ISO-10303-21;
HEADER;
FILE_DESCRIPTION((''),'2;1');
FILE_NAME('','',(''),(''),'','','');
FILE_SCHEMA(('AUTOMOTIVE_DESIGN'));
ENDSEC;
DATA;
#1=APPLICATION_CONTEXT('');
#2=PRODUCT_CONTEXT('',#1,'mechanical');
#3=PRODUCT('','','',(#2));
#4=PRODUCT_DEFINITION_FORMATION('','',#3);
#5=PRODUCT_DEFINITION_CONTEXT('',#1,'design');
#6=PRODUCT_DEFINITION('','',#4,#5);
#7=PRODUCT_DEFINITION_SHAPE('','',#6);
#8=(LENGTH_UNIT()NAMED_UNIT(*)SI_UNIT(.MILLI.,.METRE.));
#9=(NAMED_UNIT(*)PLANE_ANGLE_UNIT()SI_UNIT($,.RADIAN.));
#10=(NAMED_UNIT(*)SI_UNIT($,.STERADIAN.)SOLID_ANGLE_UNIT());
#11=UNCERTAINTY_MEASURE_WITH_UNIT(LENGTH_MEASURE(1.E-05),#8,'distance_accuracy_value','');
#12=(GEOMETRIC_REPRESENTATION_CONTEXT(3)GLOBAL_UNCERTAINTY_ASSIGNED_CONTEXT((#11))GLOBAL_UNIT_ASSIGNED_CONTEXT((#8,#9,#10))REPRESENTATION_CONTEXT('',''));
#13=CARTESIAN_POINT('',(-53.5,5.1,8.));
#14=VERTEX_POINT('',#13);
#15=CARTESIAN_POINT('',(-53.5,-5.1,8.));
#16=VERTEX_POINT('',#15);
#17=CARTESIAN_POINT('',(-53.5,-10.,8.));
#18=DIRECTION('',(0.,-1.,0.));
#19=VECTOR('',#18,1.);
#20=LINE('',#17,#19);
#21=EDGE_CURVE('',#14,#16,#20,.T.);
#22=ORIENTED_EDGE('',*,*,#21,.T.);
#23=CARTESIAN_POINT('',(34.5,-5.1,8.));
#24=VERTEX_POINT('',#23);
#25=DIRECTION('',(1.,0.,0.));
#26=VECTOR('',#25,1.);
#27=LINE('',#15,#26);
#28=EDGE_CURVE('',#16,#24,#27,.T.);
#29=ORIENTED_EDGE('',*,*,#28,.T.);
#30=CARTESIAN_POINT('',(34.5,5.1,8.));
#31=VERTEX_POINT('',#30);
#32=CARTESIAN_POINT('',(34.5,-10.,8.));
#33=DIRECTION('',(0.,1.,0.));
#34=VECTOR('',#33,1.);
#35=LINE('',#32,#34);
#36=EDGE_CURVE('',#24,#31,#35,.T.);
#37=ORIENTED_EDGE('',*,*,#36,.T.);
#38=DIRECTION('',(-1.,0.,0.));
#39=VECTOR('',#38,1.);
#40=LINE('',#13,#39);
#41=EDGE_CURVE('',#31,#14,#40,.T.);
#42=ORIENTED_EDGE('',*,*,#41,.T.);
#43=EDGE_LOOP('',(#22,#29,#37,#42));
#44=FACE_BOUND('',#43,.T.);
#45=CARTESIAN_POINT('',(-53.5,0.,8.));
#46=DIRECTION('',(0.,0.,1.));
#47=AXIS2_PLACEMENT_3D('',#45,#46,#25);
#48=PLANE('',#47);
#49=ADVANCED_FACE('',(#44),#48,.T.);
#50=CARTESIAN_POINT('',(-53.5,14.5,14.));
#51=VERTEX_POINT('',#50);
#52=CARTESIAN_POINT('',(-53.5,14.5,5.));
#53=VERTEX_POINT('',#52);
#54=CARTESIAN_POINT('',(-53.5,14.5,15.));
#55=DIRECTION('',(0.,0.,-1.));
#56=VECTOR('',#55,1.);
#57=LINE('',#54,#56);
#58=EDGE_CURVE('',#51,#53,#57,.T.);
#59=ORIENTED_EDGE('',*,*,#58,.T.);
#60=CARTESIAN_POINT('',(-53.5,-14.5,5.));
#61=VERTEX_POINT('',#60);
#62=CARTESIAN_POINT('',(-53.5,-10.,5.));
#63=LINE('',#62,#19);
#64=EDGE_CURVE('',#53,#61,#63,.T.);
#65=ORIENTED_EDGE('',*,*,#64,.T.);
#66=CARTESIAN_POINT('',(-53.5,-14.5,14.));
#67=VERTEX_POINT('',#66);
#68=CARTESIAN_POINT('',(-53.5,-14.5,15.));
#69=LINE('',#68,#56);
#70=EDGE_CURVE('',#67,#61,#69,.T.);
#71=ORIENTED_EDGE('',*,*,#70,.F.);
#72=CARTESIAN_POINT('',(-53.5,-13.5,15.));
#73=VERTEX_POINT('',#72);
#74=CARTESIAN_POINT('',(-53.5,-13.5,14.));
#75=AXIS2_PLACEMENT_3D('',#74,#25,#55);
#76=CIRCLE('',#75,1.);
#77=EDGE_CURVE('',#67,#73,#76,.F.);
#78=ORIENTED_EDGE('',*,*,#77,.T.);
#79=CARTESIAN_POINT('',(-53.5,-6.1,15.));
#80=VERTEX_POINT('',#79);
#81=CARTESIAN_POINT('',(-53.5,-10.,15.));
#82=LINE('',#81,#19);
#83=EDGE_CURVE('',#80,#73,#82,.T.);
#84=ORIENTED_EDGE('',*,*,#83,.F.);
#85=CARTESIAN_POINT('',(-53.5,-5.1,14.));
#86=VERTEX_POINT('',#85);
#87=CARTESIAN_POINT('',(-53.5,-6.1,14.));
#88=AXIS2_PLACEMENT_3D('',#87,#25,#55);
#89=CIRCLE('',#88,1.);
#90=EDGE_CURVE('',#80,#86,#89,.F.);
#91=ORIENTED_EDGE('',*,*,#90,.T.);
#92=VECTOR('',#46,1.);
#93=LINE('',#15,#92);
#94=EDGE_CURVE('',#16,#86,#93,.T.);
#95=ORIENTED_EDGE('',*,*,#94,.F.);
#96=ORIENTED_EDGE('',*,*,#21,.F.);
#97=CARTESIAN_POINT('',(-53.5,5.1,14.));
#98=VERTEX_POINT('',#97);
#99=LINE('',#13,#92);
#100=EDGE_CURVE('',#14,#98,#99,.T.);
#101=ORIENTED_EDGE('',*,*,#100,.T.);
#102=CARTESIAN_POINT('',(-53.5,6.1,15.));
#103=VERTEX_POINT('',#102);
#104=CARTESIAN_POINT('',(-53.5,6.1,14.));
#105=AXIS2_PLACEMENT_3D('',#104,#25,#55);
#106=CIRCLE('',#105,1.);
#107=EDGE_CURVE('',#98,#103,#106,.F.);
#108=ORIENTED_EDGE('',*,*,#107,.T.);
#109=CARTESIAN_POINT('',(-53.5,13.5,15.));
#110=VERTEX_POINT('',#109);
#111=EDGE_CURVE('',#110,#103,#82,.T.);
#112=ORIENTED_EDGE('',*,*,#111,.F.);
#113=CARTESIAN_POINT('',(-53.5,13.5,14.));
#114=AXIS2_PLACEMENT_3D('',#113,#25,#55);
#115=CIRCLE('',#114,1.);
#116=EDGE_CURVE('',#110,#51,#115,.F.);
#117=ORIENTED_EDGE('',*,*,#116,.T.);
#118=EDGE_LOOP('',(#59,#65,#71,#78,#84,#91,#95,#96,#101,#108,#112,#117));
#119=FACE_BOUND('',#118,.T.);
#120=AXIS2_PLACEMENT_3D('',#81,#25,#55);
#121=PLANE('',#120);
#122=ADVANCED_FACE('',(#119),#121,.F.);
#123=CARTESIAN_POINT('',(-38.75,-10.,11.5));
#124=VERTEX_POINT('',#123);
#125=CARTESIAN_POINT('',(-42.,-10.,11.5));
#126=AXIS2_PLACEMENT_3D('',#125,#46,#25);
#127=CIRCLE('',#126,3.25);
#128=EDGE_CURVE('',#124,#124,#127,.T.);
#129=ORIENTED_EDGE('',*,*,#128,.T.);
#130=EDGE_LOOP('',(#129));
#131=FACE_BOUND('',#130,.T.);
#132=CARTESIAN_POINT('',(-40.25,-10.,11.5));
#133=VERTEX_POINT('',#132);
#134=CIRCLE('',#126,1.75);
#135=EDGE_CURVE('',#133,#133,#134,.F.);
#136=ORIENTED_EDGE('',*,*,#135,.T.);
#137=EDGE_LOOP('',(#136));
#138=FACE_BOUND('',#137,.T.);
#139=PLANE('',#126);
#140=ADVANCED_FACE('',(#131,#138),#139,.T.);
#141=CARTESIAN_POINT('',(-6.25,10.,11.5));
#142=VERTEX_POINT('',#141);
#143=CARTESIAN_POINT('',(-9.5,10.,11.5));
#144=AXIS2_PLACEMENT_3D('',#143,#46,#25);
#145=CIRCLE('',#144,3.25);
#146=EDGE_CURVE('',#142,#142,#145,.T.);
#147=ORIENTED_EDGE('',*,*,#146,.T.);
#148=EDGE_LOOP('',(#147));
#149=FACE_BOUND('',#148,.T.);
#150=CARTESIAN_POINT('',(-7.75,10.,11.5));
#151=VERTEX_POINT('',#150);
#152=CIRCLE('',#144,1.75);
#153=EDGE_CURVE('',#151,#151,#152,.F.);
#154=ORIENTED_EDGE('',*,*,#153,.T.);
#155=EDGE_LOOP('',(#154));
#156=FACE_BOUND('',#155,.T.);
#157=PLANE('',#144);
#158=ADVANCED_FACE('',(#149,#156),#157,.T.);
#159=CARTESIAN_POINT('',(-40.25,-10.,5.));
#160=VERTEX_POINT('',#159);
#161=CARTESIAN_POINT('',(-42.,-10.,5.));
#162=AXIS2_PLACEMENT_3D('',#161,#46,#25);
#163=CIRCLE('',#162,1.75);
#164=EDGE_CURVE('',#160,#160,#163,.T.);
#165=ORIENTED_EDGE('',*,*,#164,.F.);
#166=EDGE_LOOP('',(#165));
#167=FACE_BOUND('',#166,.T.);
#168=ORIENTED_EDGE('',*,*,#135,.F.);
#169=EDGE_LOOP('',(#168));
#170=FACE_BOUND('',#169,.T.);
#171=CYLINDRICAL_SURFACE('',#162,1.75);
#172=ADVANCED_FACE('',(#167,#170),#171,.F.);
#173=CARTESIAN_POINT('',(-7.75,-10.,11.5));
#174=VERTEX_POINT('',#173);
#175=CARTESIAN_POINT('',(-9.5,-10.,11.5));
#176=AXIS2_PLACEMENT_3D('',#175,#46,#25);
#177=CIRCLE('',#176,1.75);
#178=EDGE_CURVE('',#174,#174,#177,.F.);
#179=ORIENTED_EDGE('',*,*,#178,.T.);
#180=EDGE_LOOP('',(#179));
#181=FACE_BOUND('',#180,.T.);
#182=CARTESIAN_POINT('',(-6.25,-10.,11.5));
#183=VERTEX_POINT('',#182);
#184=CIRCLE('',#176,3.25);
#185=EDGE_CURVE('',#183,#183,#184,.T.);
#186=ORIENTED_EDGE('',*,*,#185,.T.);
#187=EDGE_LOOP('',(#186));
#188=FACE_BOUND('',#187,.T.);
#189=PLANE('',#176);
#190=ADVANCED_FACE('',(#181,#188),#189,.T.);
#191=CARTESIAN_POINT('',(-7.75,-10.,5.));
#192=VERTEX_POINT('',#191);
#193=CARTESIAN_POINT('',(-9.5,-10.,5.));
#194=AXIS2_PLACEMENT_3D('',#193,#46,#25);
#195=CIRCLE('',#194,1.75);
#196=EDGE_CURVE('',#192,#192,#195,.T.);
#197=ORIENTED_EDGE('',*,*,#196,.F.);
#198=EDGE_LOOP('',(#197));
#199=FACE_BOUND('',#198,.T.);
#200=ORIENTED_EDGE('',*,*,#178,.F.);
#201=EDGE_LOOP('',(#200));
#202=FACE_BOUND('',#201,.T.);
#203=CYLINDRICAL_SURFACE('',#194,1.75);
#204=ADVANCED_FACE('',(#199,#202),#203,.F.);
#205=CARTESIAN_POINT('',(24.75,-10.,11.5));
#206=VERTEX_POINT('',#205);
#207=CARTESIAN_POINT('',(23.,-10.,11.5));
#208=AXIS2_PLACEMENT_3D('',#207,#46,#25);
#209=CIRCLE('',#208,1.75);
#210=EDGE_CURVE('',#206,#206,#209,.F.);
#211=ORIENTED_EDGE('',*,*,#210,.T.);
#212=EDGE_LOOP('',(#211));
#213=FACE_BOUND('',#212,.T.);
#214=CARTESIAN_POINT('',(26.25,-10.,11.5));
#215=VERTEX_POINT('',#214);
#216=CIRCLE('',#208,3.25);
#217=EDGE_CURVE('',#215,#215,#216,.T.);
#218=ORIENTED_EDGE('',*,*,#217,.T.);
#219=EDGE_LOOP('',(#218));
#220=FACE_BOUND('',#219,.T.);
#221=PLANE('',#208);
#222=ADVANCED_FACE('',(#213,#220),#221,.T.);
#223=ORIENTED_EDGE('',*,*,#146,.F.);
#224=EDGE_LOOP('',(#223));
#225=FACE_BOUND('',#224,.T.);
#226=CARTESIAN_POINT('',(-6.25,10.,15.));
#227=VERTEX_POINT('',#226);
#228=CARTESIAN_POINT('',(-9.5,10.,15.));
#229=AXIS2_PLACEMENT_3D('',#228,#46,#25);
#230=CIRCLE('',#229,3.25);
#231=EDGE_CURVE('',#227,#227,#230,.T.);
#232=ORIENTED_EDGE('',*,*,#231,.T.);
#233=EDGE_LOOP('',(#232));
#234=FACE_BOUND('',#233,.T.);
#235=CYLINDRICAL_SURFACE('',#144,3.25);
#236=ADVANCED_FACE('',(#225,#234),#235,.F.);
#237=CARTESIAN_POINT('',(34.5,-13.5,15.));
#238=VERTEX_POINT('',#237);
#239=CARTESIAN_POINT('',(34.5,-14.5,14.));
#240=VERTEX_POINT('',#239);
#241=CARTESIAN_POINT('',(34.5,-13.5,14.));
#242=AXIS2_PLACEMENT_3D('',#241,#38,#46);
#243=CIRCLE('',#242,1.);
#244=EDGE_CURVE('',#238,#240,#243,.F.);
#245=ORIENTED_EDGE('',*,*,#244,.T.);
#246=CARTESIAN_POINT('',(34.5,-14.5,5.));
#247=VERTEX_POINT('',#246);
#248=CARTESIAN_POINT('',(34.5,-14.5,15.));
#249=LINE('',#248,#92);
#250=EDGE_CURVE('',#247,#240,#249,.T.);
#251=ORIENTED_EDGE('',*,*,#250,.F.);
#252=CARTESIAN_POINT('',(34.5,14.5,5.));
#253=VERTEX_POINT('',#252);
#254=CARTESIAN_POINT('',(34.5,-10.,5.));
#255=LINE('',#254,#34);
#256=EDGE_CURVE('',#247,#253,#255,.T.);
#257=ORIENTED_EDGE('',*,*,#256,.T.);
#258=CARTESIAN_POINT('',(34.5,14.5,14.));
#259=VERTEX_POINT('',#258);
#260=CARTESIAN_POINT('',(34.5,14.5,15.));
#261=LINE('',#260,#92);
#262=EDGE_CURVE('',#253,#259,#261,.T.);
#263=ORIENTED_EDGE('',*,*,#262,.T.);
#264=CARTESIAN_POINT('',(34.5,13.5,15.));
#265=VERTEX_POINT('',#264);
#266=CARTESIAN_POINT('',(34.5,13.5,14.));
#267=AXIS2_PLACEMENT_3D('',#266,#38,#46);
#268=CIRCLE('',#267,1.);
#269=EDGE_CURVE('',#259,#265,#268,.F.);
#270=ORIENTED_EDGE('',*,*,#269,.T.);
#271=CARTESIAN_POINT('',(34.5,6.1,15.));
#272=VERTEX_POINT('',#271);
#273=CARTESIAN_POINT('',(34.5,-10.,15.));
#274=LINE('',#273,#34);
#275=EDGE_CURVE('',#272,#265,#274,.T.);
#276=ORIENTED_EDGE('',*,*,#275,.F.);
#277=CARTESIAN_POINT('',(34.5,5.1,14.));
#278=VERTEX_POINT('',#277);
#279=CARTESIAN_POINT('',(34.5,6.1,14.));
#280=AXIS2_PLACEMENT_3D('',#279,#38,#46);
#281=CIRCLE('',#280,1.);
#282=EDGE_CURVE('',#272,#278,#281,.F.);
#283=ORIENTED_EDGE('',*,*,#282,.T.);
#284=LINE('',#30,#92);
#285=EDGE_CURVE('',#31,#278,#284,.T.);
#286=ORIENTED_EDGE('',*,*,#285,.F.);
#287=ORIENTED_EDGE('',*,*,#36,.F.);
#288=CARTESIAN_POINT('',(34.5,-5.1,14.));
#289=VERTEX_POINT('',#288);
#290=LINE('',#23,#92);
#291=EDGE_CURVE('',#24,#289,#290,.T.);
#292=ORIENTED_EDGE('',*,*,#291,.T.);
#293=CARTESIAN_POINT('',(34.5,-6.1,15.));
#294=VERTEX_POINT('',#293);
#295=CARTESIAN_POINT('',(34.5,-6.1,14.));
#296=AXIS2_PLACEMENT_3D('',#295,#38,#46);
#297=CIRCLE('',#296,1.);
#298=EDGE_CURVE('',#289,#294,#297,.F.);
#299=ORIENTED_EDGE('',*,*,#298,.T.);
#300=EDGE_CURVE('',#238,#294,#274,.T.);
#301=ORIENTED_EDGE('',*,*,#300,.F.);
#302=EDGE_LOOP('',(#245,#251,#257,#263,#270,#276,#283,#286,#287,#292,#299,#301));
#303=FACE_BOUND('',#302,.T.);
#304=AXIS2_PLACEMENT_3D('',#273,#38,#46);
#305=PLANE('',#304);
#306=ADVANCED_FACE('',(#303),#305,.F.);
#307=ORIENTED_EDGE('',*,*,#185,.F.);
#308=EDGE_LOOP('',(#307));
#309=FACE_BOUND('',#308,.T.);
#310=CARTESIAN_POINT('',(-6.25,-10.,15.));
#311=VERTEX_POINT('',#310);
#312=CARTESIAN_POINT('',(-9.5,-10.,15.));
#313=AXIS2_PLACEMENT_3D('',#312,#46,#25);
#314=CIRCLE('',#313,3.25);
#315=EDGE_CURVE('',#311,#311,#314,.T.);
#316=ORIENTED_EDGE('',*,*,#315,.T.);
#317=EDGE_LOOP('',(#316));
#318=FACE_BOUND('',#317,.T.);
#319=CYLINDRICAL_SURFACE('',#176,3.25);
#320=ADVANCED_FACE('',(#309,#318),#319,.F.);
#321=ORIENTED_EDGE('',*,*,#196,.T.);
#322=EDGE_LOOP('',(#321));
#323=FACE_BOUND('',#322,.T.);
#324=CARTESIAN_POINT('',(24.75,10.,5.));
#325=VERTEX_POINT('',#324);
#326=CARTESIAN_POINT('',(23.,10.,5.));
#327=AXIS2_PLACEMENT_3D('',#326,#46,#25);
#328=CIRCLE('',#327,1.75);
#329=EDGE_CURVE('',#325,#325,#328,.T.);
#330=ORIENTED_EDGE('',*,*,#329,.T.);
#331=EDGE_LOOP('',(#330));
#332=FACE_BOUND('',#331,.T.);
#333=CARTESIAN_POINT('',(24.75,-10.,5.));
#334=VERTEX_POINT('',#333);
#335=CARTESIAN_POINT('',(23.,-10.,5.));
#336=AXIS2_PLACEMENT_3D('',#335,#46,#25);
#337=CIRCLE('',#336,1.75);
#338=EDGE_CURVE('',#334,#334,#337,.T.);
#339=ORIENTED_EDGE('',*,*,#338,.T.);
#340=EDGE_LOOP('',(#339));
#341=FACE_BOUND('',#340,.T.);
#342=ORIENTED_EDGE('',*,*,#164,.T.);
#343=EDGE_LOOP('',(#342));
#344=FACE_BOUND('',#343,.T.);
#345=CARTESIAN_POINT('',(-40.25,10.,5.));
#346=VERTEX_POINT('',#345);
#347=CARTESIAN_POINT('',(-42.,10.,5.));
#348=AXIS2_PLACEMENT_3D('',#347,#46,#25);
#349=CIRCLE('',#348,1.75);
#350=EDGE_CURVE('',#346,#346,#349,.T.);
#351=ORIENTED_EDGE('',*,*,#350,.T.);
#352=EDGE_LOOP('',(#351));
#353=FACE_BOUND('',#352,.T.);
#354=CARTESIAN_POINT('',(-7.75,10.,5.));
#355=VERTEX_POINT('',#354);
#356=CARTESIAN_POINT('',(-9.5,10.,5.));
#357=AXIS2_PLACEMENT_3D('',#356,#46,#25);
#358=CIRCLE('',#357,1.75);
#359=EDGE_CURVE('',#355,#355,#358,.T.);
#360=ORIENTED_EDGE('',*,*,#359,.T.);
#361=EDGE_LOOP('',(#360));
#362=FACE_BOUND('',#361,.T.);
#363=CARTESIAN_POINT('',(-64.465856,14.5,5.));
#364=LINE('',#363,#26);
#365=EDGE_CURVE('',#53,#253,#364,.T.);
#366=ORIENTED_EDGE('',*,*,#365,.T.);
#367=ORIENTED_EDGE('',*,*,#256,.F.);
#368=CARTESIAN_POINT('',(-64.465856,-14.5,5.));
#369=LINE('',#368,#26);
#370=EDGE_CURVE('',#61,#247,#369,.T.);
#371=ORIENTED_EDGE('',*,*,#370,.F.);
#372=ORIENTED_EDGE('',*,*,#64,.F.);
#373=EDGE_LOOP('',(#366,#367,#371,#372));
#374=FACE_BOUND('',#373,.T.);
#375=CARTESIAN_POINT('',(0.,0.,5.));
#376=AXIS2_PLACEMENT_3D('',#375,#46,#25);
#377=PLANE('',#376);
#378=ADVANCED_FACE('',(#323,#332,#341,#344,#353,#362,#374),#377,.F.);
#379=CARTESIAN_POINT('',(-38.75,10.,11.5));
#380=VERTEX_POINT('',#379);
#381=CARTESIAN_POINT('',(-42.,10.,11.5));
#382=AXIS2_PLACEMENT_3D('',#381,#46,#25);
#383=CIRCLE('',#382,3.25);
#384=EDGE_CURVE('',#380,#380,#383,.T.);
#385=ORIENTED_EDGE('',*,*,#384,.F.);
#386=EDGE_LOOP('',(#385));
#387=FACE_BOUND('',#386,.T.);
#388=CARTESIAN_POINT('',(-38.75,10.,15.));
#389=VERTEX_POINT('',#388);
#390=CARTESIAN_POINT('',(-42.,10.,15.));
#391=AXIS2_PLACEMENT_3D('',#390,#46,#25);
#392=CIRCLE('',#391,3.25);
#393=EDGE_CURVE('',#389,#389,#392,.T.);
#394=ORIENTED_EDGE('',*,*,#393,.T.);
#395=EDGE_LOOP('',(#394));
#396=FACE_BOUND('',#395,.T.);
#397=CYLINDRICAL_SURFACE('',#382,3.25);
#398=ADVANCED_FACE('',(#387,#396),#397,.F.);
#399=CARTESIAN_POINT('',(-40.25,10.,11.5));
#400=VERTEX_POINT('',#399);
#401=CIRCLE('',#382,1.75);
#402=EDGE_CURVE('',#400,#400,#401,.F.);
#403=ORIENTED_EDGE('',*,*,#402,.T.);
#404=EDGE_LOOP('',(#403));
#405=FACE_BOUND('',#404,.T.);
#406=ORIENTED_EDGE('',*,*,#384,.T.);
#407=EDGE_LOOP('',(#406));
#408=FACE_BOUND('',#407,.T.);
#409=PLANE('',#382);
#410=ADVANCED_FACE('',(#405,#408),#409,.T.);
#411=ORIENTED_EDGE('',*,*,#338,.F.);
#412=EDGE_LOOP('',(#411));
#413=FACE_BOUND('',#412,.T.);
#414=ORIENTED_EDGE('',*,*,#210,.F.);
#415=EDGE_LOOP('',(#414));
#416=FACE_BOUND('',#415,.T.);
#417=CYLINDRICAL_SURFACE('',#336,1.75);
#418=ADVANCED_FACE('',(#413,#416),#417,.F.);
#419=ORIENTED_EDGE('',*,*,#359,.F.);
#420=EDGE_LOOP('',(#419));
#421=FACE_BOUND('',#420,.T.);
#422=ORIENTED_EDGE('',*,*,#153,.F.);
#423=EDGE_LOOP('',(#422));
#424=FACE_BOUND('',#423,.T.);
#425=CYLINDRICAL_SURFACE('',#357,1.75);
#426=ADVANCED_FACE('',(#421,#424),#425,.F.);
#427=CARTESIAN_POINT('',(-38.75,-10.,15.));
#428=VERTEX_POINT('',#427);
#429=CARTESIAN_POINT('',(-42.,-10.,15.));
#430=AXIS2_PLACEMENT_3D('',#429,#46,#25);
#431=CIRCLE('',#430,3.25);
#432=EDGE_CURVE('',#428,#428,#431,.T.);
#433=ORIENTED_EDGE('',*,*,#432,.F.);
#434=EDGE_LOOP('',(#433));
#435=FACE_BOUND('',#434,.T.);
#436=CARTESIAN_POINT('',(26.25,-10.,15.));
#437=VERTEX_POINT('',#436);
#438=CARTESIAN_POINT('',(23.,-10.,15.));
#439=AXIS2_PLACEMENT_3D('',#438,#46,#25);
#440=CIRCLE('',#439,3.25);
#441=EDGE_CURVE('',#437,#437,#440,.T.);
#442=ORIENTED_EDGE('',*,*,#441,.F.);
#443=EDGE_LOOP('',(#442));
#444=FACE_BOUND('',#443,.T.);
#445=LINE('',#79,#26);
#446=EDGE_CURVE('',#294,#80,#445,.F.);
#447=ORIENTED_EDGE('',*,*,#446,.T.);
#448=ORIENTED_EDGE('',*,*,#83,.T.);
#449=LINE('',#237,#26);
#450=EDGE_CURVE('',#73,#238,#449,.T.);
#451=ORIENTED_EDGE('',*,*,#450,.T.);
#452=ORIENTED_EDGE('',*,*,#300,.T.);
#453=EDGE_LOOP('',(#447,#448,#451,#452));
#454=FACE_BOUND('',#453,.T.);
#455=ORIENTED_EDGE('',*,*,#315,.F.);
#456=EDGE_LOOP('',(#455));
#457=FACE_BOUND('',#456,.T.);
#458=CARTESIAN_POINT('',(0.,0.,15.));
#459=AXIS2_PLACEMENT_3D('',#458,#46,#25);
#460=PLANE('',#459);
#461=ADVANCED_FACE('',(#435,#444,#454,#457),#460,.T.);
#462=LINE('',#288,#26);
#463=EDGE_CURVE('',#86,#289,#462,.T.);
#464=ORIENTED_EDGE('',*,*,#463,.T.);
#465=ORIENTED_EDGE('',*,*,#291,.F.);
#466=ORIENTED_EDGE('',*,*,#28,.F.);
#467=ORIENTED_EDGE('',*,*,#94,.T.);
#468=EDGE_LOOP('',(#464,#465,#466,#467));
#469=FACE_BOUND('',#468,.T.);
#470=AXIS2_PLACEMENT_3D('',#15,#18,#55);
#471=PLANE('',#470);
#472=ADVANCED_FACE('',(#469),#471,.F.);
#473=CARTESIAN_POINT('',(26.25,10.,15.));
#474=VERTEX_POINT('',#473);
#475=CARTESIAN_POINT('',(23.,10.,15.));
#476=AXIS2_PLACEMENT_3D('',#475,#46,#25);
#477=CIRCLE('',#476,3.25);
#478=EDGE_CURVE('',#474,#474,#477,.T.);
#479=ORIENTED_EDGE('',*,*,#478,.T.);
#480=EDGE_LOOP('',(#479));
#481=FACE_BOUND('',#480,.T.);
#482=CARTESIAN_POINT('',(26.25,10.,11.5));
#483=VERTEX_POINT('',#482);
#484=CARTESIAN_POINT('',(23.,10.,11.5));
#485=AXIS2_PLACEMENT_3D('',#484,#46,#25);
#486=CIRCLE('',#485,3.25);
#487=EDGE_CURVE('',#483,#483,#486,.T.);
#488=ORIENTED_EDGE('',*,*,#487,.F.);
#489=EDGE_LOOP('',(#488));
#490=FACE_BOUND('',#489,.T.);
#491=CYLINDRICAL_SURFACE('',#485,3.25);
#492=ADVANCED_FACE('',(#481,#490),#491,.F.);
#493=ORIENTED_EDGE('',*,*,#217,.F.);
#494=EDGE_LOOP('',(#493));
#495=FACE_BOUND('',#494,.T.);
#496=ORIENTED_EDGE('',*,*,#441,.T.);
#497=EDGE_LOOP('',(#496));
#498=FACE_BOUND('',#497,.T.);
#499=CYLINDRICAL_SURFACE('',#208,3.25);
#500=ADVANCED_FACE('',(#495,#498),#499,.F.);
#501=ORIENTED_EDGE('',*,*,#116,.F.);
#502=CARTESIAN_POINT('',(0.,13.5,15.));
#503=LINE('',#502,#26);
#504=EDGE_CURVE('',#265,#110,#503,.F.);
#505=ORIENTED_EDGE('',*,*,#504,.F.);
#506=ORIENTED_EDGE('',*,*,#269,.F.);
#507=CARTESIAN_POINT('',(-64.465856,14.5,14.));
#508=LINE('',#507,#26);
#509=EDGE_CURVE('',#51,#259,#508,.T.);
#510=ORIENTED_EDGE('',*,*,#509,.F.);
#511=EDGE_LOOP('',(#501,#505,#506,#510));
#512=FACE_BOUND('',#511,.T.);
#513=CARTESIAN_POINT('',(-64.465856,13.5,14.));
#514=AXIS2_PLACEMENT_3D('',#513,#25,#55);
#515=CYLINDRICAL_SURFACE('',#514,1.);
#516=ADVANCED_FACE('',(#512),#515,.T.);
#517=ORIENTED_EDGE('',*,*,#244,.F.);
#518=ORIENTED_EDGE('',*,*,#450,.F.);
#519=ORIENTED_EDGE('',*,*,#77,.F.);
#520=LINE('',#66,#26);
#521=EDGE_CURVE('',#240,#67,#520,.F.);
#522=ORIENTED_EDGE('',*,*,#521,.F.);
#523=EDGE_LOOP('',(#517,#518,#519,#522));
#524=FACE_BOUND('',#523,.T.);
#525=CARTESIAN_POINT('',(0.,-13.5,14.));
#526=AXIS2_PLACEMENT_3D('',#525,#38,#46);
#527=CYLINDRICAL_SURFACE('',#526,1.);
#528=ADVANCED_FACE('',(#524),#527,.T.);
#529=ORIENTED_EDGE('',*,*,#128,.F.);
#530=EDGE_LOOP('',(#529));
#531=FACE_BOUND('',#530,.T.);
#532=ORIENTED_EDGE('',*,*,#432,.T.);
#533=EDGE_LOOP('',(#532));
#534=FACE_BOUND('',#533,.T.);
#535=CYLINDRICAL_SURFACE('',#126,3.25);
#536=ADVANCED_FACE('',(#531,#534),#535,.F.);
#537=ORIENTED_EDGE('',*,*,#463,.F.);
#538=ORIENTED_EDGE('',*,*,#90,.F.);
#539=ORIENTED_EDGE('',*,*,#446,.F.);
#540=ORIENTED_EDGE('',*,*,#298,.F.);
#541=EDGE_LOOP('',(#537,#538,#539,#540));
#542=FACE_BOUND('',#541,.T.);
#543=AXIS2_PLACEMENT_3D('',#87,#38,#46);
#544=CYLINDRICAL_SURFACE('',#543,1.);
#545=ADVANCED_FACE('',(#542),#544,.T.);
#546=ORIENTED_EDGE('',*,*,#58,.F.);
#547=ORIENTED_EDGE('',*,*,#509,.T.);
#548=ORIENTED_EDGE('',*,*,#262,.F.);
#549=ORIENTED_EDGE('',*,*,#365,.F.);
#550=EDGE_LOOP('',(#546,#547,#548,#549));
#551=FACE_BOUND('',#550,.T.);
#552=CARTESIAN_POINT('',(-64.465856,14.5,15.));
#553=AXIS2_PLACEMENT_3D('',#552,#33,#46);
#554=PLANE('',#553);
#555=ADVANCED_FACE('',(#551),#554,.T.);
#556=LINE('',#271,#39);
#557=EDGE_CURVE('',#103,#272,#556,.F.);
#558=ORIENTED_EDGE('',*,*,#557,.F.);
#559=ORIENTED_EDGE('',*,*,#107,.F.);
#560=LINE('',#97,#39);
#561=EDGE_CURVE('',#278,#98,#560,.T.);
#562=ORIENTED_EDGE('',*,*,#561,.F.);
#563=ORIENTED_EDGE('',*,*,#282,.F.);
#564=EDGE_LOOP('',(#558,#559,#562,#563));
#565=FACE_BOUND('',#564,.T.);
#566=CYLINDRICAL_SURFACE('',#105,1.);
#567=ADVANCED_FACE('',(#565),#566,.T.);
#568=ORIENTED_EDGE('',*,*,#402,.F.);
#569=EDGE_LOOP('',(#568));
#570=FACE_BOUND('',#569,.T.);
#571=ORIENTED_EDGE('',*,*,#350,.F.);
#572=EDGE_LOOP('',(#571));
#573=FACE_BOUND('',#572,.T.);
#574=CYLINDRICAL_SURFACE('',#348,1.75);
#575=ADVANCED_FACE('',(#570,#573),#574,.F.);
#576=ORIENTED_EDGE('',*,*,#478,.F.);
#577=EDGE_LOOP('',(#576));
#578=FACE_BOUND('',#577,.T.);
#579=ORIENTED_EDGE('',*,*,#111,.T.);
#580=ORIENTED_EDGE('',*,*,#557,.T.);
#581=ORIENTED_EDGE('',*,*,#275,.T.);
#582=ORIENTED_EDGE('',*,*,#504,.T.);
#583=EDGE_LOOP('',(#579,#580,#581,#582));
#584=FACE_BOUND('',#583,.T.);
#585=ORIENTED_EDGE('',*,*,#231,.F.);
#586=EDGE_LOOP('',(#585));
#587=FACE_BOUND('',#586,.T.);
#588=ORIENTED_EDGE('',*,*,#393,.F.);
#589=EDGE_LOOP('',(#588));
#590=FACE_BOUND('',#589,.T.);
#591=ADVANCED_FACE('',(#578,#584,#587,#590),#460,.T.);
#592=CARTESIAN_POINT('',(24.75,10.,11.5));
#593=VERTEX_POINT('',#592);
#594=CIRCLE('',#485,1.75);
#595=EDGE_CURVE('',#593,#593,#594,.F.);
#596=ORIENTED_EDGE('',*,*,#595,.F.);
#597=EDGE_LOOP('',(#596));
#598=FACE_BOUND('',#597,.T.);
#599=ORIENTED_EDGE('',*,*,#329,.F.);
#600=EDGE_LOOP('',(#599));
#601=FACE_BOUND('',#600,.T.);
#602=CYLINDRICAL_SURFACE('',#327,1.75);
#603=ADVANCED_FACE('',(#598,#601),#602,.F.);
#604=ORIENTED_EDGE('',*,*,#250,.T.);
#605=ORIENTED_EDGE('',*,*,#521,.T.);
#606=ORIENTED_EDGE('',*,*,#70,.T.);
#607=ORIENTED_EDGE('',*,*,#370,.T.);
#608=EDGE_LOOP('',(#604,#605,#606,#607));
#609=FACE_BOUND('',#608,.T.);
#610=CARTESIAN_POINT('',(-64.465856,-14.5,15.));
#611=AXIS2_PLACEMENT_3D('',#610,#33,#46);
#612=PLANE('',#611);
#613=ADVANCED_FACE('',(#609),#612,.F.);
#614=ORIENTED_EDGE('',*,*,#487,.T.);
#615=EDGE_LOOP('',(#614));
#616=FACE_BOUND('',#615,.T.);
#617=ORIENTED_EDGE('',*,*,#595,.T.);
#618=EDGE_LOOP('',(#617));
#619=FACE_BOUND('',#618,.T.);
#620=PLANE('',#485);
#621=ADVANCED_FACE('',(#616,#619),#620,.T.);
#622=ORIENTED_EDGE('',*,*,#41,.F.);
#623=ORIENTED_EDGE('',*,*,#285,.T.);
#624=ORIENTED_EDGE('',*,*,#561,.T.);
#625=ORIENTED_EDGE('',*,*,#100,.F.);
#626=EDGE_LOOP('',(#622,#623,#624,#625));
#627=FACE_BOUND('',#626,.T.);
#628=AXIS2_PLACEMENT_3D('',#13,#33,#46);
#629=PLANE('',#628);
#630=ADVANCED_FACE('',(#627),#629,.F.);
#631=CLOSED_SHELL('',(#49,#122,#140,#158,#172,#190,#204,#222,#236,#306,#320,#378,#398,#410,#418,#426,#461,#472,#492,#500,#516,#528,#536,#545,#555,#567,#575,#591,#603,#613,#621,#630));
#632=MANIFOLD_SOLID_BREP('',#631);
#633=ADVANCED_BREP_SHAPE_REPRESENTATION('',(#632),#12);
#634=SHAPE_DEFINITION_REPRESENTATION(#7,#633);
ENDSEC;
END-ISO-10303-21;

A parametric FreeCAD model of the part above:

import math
import FreeCAD as App
import Part
import Sketcher
from FreeCAD import Vector


def edges_at(feature, points):
    """Names of the edges that pass closest to the given points."""
    edges = feature.Shape.Edges
    near = lambda p: min(range(len(edges)), key=lambda i: edges[i].distToShape(Part.Vertex(*p))[0])
    return sorted({f"Edge{near(p) + 1}" for p in points})


def add_polygon(sketch, points):
    """Adds a closed chain of lines whose ends are joined by coincident constraints."""
    first, n = sketch.GeometryCount, len(points)
    for a, b in zip(points, points[1:] + points[:1]):
        sketch.addGeometry(Part.LineSegment(App.Vector(*a, 0), App.Vector(*b, 0)), False)
    for i in range(n):
        sketch.addConstraint(Sketcher.Constraint("Coincident", first + i, 2, first + (i + 1) % n, 1))

doc = App.newDocument("Part")
body = doc.addObject("PartDesign::Body", "Body")
body.AllowCompound = True

sketch1 = body.newObject("Sketcher::SketchObject", "Sketch")
sketch1.AttachmentSupport = (doc.getObject("XY_Plane"), [""])
sketch1.MapMode = "FlatFace"
add_polygon(sketch1, [(-128, 40), (-128, -40), (128, -40), (128, 40)])
sketch1.addConstraint(Sketcher.Constraint("Vertical", 0))
sketch1.addConstraint(Sketcher.Constraint("Horizontal", 1))
sketch1.addConstraint(Sketcher.Constraint("Vertical", 2))
sketch1.addConstraint(Sketcher.Constraint("Horizontal", 3))
sketch1.addConstraint(Sketcher.Constraint("Symmetric", 0, 2, 2, 2, -1, 1))
sketch1.addConstraint(Sketcher.Constraint("DistanceX", 1, 1, 1, 2, 255.0))
sketch1.addConstraint(Sketcher.Constraint("DistanceY", 0, 2, 0, 1, 80.0))
pad1 = body.newObject("PartDesign::Pad", "Pad")
pad1.Profile = sketch1
pad1.Length = 5

sketch2 = body.newObject("Sketcher::SketchObject", "Sketch001")
sketch2.AttachmentSupport = (doc.getObject("XY_Plane"), [""])
sketch2.MapMode = "FlatFace"
sketch2.AttachmentOffset = App.Placement(Vector(0, 0, 5), App.Rotation())
sketch2.addGeometry(Part.Circle(Vector(-108, 0, 0), Vector(0, 0, 1), 5), False)
sketch2.addConstraint(Sketcher.Constraint("PointOnObject", 0, 3, -1))
sketch2.addConstraint(Sketcher.Constraint("Diameter", 0, 10.0))
sketch2.addConstraint(Sketcher.Constraint("DistanceX", 0, 3, -1, 1, 107.5))
pocket1 = body.newObject("PartDesign::Pocket", "Pocket")
pocket1.Profile = sketch2
pocket1.Length = 5

sketch3 = body.newObject("Sketcher::SketchObject", "Sketch002")
sketch3.AttachmentSupport = (doc.getObject("XY_Plane"), [""])
sketch3.MapMode = "FlatFace"
sketch3.AttachmentOffset = App.Placement(Vector(0, 0, 5), App.Rotation())
sketch3.addGeometry(Part.Circle(Vector(-45, 0, 0), Vector(0, 0, 1), 4), False)
sketch3.addConstraint(Sketcher.Constraint("PointOnObject", 0, 3, -1))
sketch3.addConstraint(Sketcher.Constraint("Diameter", 0, 8.0))
sketch3.addConstraint(Sketcher.Constraint("DistanceX", 0, 3, -1, 1, 45.0))
pocket2 = body.newObject("PartDesign::Pocket", "Pocket001")
pocket2.Profile = sketch3
pocket2.Length = 10

sketch4 = body.newObject("Sketcher::SketchObject", "Sketch003")
sketch4.AttachmentSupport = (doc.getObject("XY_Plane"), [""])
sketch4.MapMode = "FlatFace"
sketch4.AttachmentOffset = App.Placement(Vector(0, 0, 5), App.Rotation())
add_polygon(sketch4, [(-54, 10), (-54, -10), (34, -10), (34, 10)])
sketch4.addConstraint(Sketcher.Constraint("Vertical", 0))
sketch4.addConstraint(Sketcher.Constraint("Horizontal", 1))
sketch4.addConstraint(Sketcher.Constraint("Vertical", 2))
sketch4.addConstraint(Sketcher.Constraint("Horizontal", 3))
sketch4.addConstraint(Sketcher.Constraint("DistanceX", 1, 1, 1, 2, 88.0))
sketch4.addConstraint(Sketcher.Constraint("DistanceY", 0, 2, 0, 1, 20.0))
sketch4.addConstraint(Sketcher.Constraint("DistanceY", 0, 2, -1, 1, 10.0))
sketch4.addConstraint(Sketcher.Constraint("DistanceX", 0, 2, -1, 1, 53.5))
pad2 = body.newObject("PartDesign::Pad", "Pad001")
pad2.Profile = sketch4
pad2.Length = 10

sketch5 = body.newObject("Sketcher::SketchObject", "Sketch004")
sketch5.AttachmentSupport = (doc.getObject("XY_Plane"), [""])
sketch5.MapMode = "FlatFace"
sketch5.AttachmentOffset = App.Placement(Vector(0, 0, 5), App.Rotation())
sketch5.addGeometry(Part.Circle(Vector(70, 0, 0), Vector(0, 0, 1), 15), False)
sketch5.addConstraint(Sketcher.Constraint("PointOnObject", 0, 3, -1))
sketch5.addConstraint(Sketcher.Constraint("Diameter", 0, 30.0))
sketch5.addConstraint(Sketcher.Constraint("DistanceX", -1, 1, 0, 3, 70.0))
pocket3 = body.newObject("PartDesign::Pocket", "Pocket002")
pocket3.Profile = sketch5
pocket3.Length = 10

sketch6 = body.newObject("Sketcher::SketchObject", "Sketch005")
sketch6.AttachmentSupport = (doc.getObject("XY_Plane"), [""])
sketch6.MapMode = "FlatFace"
sketch6.addGeometry(Part.Circle(Vector(-108, 0, 0), Vector(0, 0, 1), 7), False)
sketch6.addConstraint(Sketcher.Constraint("PointOnObject", 0, 3, -1))
sketch6.addConstraint(Sketcher.Constraint("Diameter", 0, 14.0))
sketch6.addConstraint(Sketcher.Constraint("DistanceX", 0, 3, -1, 1, 107.5))
pad3 = body.newObject("PartDesign::Pad", "Pad002")
pad3.Profile = sketch6
pad3.Length = 15

sketch7 = body.newObject("Sketcher::SketchObject", "Sketch006")
sketch7.AttachmentSupport = (doc.getObject("XY_Plane"), [""])
sketch7.MapMode = "FlatFace"
sketch7.AttachmentOffset = App.Placement(Vector(0, 0, 15), App.Rotation())
sketch7.addGeometry(Part.Circle(Vector(-107.5, 0, 0), Vector(0, 0, 1), 2.5), False)
sketch7.addConstraint(Sketcher.Constraint("PointOnObject", 0, 3, -1))
sketch7.addConstraint(Sketcher.Constraint("Diameter", 0, 5.0))
sketch7.addConstraint(Sketcher.Constraint("DistanceX", 0, 3, -1, 1, 107.5))
doc.recompute()
hole = body.newObject("PartDesign::Hole", "Hole")
hole.Profile = sketch7
hole.ThreadType = "None"
hole.Diameter = 5
hole.DepthType = "ThroughAll"

sketch8 = body.newObject("Sketcher::SketchObject", "Sketch007")
sketch8.AttachmentSupport = (doc.getObject("XY_Plane"), [""])
sketch8.MapMode = "FlatFace"
sketch8.AttachmentOffset = App.Placement(Vector(0, 0, 15), App.Rotation())
sketch8.addGeometry(Part.LineSegment(Vector(34, 5, 0), Vector(-54, 5, 0)), False)
sketch8.addGeometry(Part.ArcOfCircle(Part.Circle(Vector(-54, 0, 0), Vector(0, 0, 1), 5), math.radians(90), math.radians(270)), False)
sketch8.addGeometry(Part.LineSegment(Vector(-54, -5, 0), Vector(34, -5, 0)), False)
sketch8.addGeometry(Part.ArcOfCircle(Part.Circle(Vector(34, 0, 0), Vector(0, 0, 1), 5), math.radians(-90), math.radians(90)), False)
sketch8.addConstraint(Sketcher.Constraint("Tangent", 0, 2, 1, 1))
sketch8.addConstraint(Sketcher.Constraint("Tangent", 1, 2, 2, 1))
sketch8.addConstraint(Sketcher.Constraint("Tangent", 2, 2, 3, 1))
sketch8.addConstraint(Sketcher.Constraint("Tangent", 3, 2, 0, 1))
sketch8.addConstraint(Sketcher.Constraint("Horizontal", 0))
sketch8.addConstraint(Sketcher.Constraint("Horizontal", 2))
sketch8.addConstraint(Sketcher.Constraint("PointOnObject", 1, 3, -1))
sketch8.addConstraint(Sketcher.Constraint("Radius", 1, 5.1))
sketch8.addConstraint(Sketcher.Constraint("DistanceX", 0, 2, 0, 1, 88.0))
sketch8.addConstraint(Sketcher.Constraint("DistanceX", 1, 3, -1, 1, 53.5))
pocket4 = body.newObject("PartDesign::Pocket", "Pocket003")
pocket4.Profile = sketch8
pocket4.Length = 7

sketch9 = body.newObject("Sketcher::SketchObject", "Sketch008")
sketch9.AttachmentSupport = (doc.getObject("XY_Plane"), [""])
sketch9.MapMode = "FlatFace"
sketch9.addGeometry(Part.Circle(Vector(39.8, -26.5, 0), Vector(0, 0, 1), 1.6), False)
sketch9.addGeometry(Part.Circle(Vector(39.8, -1.5, 0), Vector(0, 0, 1), 1.6), False)
sketch9.addGeometry(Part.Circle(Vector(109.9, -26.5, 0), Vector(0, 0, 1), 1.6), False)
sketch9.addGeometry(Part.Circle(Vector(100.2, -1.5, 0), Vector(0, 0, 1), 1.6), False)
sketch9.addConstraint(Sketcher.Constraint("Equal", 0, 1))
sketch9.addConstraint(Sketcher.Constraint("Equal", 1, 2))
sketch9.addConstraint(Sketcher.Constraint("Equal", 2, 3))
sketch9.addConstraint(Sketcher.Constraint("Horizontal", 0, 3, 2, 3))
sketch9.addConstraint(Sketcher.Constraint("Horizontal", 1, 3, 3, 3))
sketch9.addConstraint(Sketcher.Constraint("Vertical", 0, 3, 1, 3))
sketch9.addConstraint(Sketcher.Constraint("Diameter", 0, 3.3))
sketch9.addConstraint(Sketcher.Constraint("DistanceY", 0, 3, 1, 3, 25.0))
sketch9.addConstraint(Sketcher.Constraint("DistanceY", 0, 3, -1, 1, 26.5))
sketch9.addConstraint(Sketcher.Constraint("DistanceX", 1, 3, 3, 3, 60.5))
sketch9.addConstraint(Sketcher.Constraint("DistanceX", -1, 1, 0, 3, 39.75))
sketch9.addConstraint(Sketcher.Constraint("DistanceX", -1, 1, 2, 3, 109.940074))
doc.recompute()
hole2 = body.newObject("PartDesign::Hole", "Hole001")
hole2.Profile = sketch9
hole2.ThreadType = "None"
hole2.Diameter = 3.3
hole2.DepthType = "ThroughAll"
hole2.Reversed = True
doc.recompute()

fillet = body.newObject("PartDesign::Fillet", "Fillet")
fillet.Base = (hole2, edges_at(hole2, [(-127.5, 40, 2.5), (-127.5, -40, 2.5)]))
fillet.Radius = 10

sketch10 = body.newObject("Sketcher::SketchObject", "Sketch009")
sketch10.AttachmentSupport = (doc.getObject("XY_Plane"), [""])
sketch10.MapMode = "FlatFace"
sketch10.AttachmentOffset = App.Placement(Vector(0, 0, 5), App.Rotation())
sketch10.addGeometry(Part.Circle(Vector(-45, 0, 0), Vector(0, 0, 1), 7), False)
sketch10.addConstraint(Sketcher.Constraint("PointOnObject", 0, 3, -1))
sketch10.addConstraint(Sketcher.Constraint("DistanceX", 0, 3, -1, 1, 45.0))
sketch10.addConstraint(Sketcher.Constraint("Diameter", 0, 13.93877))
pad4 = body.newObject("PartDesign::Pad", "Pad003")
pad4.Profile = sketch10
pad4.Length = 5
pad4.Reversed = True

sketch11 = body.newObject("Sketcher::SketchObject", "Sketch010")
sketch11.AttachmentSupport = (doc.getObject("XZ_Plane"), [""])
sketch11.MapMode = "FlatFace"
sketch11.AttachmentOffset = App.Placement(Vector(0, 0, 40), App.Rotation())
add_polygon(sketch11, [(122, 0), (122, -75), (128, -75), (128, 0)])
sketch11.addConstraint(Sketcher.Constraint("Vertical", 0))
sketch11.addConstraint(Sketcher.Constraint("Horizontal", 1))
sketch11.addConstraint(Sketcher.Constraint("Vertical", 2))
sketch11.addConstraint(Sketcher.Constraint("Horizontal", 3))
sketch11.addConstraint(Sketcher.Constraint("PointOnObject", 2, 2, -1))
sketch11.addConstraint(Sketcher.Constraint("DistanceX", 1, 1, 1, 2, 5.0))
sketch11.addConstraint(Sketcher.Constraint("DistanceY", 0, 2, 0, 1, 75.0))
sketch11.addConstraint(Sketcher.Constraint("DistanceX", -1, 1, 0, 2, 122.5))
pad5 = body.newObject("PartDesign::Pad", "Pad004")
pad5.Profile = sketch11
pad5.Length = 80
pad5.Reversed = True

sketch12 = body.newObject("Sketcher::SketchObject", "Sketch011")
sketch12.AttachmentSupport = (doc.getObject("XZ_Plane"), [""])
sketch12.MapMode = "FlatFace"
sketch12.AttachmentOffset = App.Placement(Vector(0, 0, 40), App.Rotation())
add_polygon(sketch12, [(102, -70), (102, -75), (122, -75), (122, -70)])
sketch12.addConstraint(Sketcher.Constraint("Vertical", 0))
sketch12.addConstraint(Sketcher.Constraint("Horizontal", 1))
sketch12.addConstraint(Sketcher.Constraint("Vertical", 2))
sketch12.addConstraint(Sketcher.Constraint("Horizontal", 3))
sketch12.addConstraint(Sketcher.Constraint("DistanceX", 1, 1, 1, 2, 20.0))
sketch12.addConstraint(Sketcher.Constraint("DistanceY", 0, 2, 0, 1, 5.0))
sketch12.addConstraint(Sketcher.Constraint("DistanceY", 0, 2, -1, 1, 75.0))
sketch12.addConstraint(Sketcher.Constraint("DistanceX", -1, 1, 0, 2, 102.5))
pad6 = body.newObject("PartDesign::Pad", "Pad005")
pad6.Profile = sketch12
pad6.Length = 80
pad6.Reversed = True

sketch13 = body.newObject("Sketcher::SketchObject", "Sketch012")
sketch13.AttachmentSupport = (doc.getObject("XZ_Plane"), [""])
sketch13.MapMode = "FlatFace"
sketch13.AttachmentOffset = App.Placement(Vector(0, 0, 40), App.Rotation())
add_polygon(sketch13, [(-32, 5), (-32, 0), (102, -75), (128, -75), (128, 5)])
sketch13.addConstraint(Sketcher.Constraint("Vertical", 0))
sketch13.addConstraint(Sketcher.Constraint("Horizontal", 2))
sketch13.addConstraint(Sketcher.Constraint("Vertical", 3))
sketch13.addConstraint(Sketcher.Constraint("Horizontal", 4))
sketch13.addConstraint(Sketcher.Constraint("PointOnObject", 0, 2, -1))
sketch13.addConstraint(Sketcher.Constraint("DistanceX", 2, 1, 2, 2, 25.0))
sketch13.addConstraint(Sketcher.Constraint("DistanceX", 4, 2, 4, 1, 160.0))
sketch13.addConstraint(Sketcher.Constraint("DistanceY", 0, 2, 0, 1, 5.0))
sketch13.addConstraint(Sketcher.Constraint("DistanceY", 3, 1, 3, 2, 80.0))
sketch13.addConstraint(Sketcher.Constraint("DistanceX", 0, 2, -1, 1, 32.5))
pad7 = body.newObject("PartDesign::Pad", "Pad006")
pad7.Profile = sketch13
pad7.Length = 5
pad7.Reversed = True
doc.recompute()

mirrored = body.newObject("PartDesign::Mirrored", "Mirrored")
mirrored.Originals = [pad7]
mirrored.MirrorPlane = (doc.getObject("XZ_Plane"), [""])
body.Tip = mirrored

sketch14 = body.newObject("Sketcher::SketchObject", "Sketch013")
sketch14.AttachmentSupport = (doc.getObject("XY_Plane"), [""])
sketch14.MapMode = "FlatFace"
sketch14.AttachmentOffset = App.Placement(Vector(0, 0, -75), App.Rotation())
sketch14.addGeometry(Part.Circle(Vector(114.5, -15, 0), Vector(0, 0, 1), 3), False)
sketch14.addGeometry(Part.Circle(Vector(114.5, 15, 0), Vector(0, 0, 1), 3), False)
sketch14.addConstraint(Sketcher.Constraint("Equal", 0, 1))
sketch14.addConstraint(Sketcher.Constraint("Symmetric", 0, 3, 1, 3, -1))
sketch14.addConstraint(Sketcher.Constraint("Diameter", 0, 6.0))
sketch14.addConstraint(Sketcher.Constraint("DistanceY", 0, 3, -1, 1, 15.0))
sketch14.addConstraint(Sketcher.Constraint("DistanceX", -1, 1, 0, 3, 114.5))
pocket5 = body.newObject("PartDesign::Pocket", "Pocket004")
pocket5.Profile = sketch14
pocket5.Length = 5
pocket5.Reversed = True
doc.recompute()

fillet2 = body.newObject("PartDesign::Fillet", "Fillet001")
fillet2.Base = (pocket5, edges_at(pocket5, [
    (-127.5, 0, 0),
    (-124.571, 37.071, 0),
    (-124.571, -37.071, 0),
    (-127.5, 0, 5),
    (-124.571, 37.071, 5),
    (-124.571, -37.071, 5),
    (127.5, 0, -75),
    (115, -40, -75),
    (115, 40, -75),
    (127.5, 0, 5),
    (35, -40, -37.5),
    (35, -35, -37.5),
    (5, 40, 5),
    (-75, 40, 0),
    (35, 40, -37.5),
    (35, 35, -37.5),
    (127.5, 40, -35),
    (127.5, -40, -35),
    (-75, -40, 0),
    (5, -40, 5),
]))
fillet2.Radius = 1

sketch15 = body.newObject("Sketcher::SketchObject", "Sketch014")
sketch15.AttachmentSupport = (doc.getObject("XY_Plane"), [""])
sketch15.MapMode = "FlatFace"
sketch15.AttachmentOffset = App.Placement(Vector(0, 0, 5), App.Rotation())
add_polygon(sketch15, [(-155, 67), (-155, -67), (155, -67), (155, 67)])
sketch15.addConstraint(Sketcher.Constraint("Vertical", 0))
sketch15.addConstraint(Sketcher.Constraint("Horizontal", 1))
sketch15.addConstraint(Sketcher.Constraint("Vertical", 2))
sketch15.addConstraint(Sketcher.Constraint("Horizontal", 3))
sketch15.addConstraint(Sketcher.Constraint("Symmetric", 0, 2, 2, 2, -1, 1))
sketch15.addConstraint(Sketcher.Constraint("DistanceY", 0, 2, 0, 1, 134.290372))
sketch15.addConstraint(Sketcher.Constraint("DistanceX", 1, 1, 1, 2, 309.613912))
pocket6 = body.newObject("PartDesign::Pocket", "Pocket005")
pocket6.Profile = sketch15
pocket6.Type = "ThroughAll"

sketch16 = body.newObject("Sketcher::SketchObject", "Sketch015")
sketch16.AttachmentSupport = (doc.getObject("XY_Plane"), [""])
sketch16.MapMode = "FlatFace"
sketch16.AttachmentOffset = App.Placement(Vector(0, 0, 15), App.Rotation())
sketch16.addGeometry(Part.Circle(Vector(-108, 0, 0), Vector(0, 0, 1), 17), False)
sketch16.addConstraint(Sketcher.Constraint("PointOnObject", 0, 3, -1))
sketch16.addConstraint(Sketcher.Constraint("Diameter", 0, 34.0))
sketch16.addConstraint(Sketcher.Constraint("DistanceX", 0, 3, -1, 1, 107.5))
pocket7 = body.newObject("PartDesign::Pocket", "Pocket006")
pocket7.Profile = sketch16
pocket7.Type = "ThroughAll"

sketch17 = body.newObject("Sketcher::SketchObject", "Sketch016")
sketch17.AttachmentSupport = (doc.getObject("YZ_Plane"), [""])
sketch17.MapMode = "FlatFace"
sketch17.AttachmentOffset = App.Placement(Vector(0, 0, 34.5), App.Rotation())
add_polygon(sketch17, [(14.5, 15), (10, 15), (10, 5), (14.5, 5)])
sketch17.addConstraint(Sketcher.Constraint("Horizontal", 0))
sketch17.addConstraint(Sketcher.Constraint("Vertical", 1))
sketch17.addConstraint(Sketcher.Constraint("Horizontal", 2))
sketch17.addConstraint(Sketcher.Constraint("Vertical", 3))
sketch17.addConstraint(Sketcher.Constraint("DistanceY", 1, 2, 1, 1, 10.0))
sketch17.addConstraint(Sketcher.Constraint("DistanceX", 0, 2, 0, 1, 4.5))
sketch17.addConstraint(Sketcher.Constraint("DistanceX", -1, 1, 0, 2, 10.0))
sketch17.addConstraint(Sketcher.Constraint("DistanceY", -1, 1, 0, 2, 15.0))
pad8 = body.newObject("PartDesign::Pad", "Pad007")
pad8.Profile = sketch17
pad8.Length = 88
pad8.Reversed = True
doc.recompute()

mirrored2 = body.newObject("PartDesign::Mirrored", "Mirrored001")
mirrored2.Originals = [pad8]
mirrored2.MirrorPlane = (doc.getObject("XZ_Plane"), [""])
body.Tip = mirrored2

sketch18 = body.newObject("Sketcher::SketchObject", "Sketch017")
sketch18.AttachmentSupport = (doc.getObject("XY_Plane"), [""])
sketch18.MapMode = "FlatFace"
sketch18.AttachmentOffset = App.Placement(Vector(0, 0, 15), App.Rotation())
sketch18.addGeometry(Part.Circle(Vector(-42, 10, 0), Vector(0, 0, 1), 1.8), False)
sketch18.addGeometry(Part.Circle(Vector(-9.5, 10, 0), Vector(0, 0, 1), 1.8), False)
sketch18.addGeometry(Part.Circle(Vector(23, 10, 0), Vector(0, 0, 1), 1.8), False)
sketch18.addGeometry(Part.Circle(Vector(23, -10, 0), Vector(0, 0, 1), 1.8), False)
sketch18.addGeometry(Part.Circle(Vector(-9.5, -10, 0), Vector(0, 0, 1), 1.8), False)
sketch18.addGeometry(Part.Circle(Vector(-42, -10, 0), Vector(0, 0, 1), 1.8), False)
sketch18.addConstraint(Sketcher.Constraint("Equal", 0, 1))
sketch18.addConstraint(Sketcher.Constraint("Equal", 1, 2))
sketch18.addConstraint(Sketcher.Constraint("Equal", 2, 3))
sketch18.addConstraint(Sketcher.Constraint("Equal", 3, 4))
sketch18.addConstraint(Sketcher.Constraint("Equal", 4, 5))
sketch18.addConstraint(Sketcher.Constraint("Symmetric", 2, 3, 3, 3, -1))
sketch18.addConstraint(Sketcher.Constraint("Symmetric", 1, 3, 4, 3, -1))
sketch18.addConstraint(Sketcher.Constraint("Symmetric", 0, 3, 5, 3, -1))
sketch18.addConstraint(Sketcher.Constraint("Horizontal", 0, 3, 1, 3))
sketch18.addConstraint(Sketcher.Constraint("Horizontal", 1, 3, 2, 3))
sketch18.addConstraint(Sketcher.Constraint("Diameter", 0, 3.5))
sketch18.addConstraint(Sketcher.Constraint("DistanceX", 0, 3, -1, 1, 42.0))
sketch18.addConstraint(Sketcher.Constraint("DistanceY", -1, 1, 0, 3, 10.0))
sketch18.addConstraint(Sketcher.Constraint("DistanceX", -1, 1, 2, 3, 23.0))
sketch18.addConstraint(Sketcher.Constraint("DistanceX", 1, 3, -1, 1, 9.5))
pocket8 = body.newObject("PartDesign::Pocket", "Pocket007")
pocket8.Profile = sketch18
pocket8.Type = "ThroughAll"

sketch19 = body.newObject("Sketcher::SketchObject", "Sketch018")
sketch19.AttachmentSupport = (doc.getObject("XY_Plane"), [""])
sketch19.MapMode = "FlatFace"
sketch19.AttachmentOffset = App.Placement(Vector(0, 0, 15), App.Rotation())
sketch19.addGeometry(Part.Circle(Vector(-42, 10, 0), Vector(0, 0, 1), 3.2), False)
sketch19.addGeometry(Part.Circle(Vector(-9.5, 10, 0), Vector(0, 0, 1), 3.2), False)
sketch19.addGeometry(Part.Circle(Vector(23, 10, 0), Vector(0, 0, 1), 3.2), False)
sketch19.addGeometry(Part.Circle(Vector(23, -10, 0), Vector(0, 0, 1), 3.2), False)
sketch19.addGeometry(Part.Circle(Vector(-9.5, -10, 0), Vector(0, 0, 1), 3.2), False)
sketch19.addGeometry(Part.Circle(Vector(-42, -10, 0), Vector(0, 0, 1), 3.2), False)
sketch19.addConstraint(Sketcher.Constraint("Equal", 0, 1))
sketch19.addConstraint(Sketcher.Constraint("Equal", 1, 2))
sketch19.addConstraint(Sketcher.Constraint("Equal", 2, 3))
sketch19.addConstraint(Sketcher.Constraint("Equal", 3, 4))
sketch19.addConstraint(Sketcher.Constraint("Equal", 4, 5))
sketch19.addConstraint(Sketcher.Constraint("Symmetric", 2, 3, 3, 3, -1))
sketch19.addConstraint(Sketcher.Constraint("Symmetric", 1, 3, 4, 3, -1))
sketch19.addConstraint(Sketcher.Constraint("Symmetric", 0, 3, 5, 3, -1))
sketch19.addConstraint(Sketcher.Constraint("Horizontal", 0, 3, 1, 3))
sketch19.addConstraint(Sketcher.Constraint("Horizontal", 1, 3, 2, 3))
sketch19.addConstraint(Sketcher.Constraint("Diameter", 0, 6.5))
sketch19.addConstraint(Sketcher.Constraint("DistanceX", 0, 3, -1, 1, 42.0))
sketch19.addConstraint(Sketcher.Constraint("DistanceY", -1, 1, 0, 3, 10.0))
sketch19.addConstraint(Sketcher.Constraint("DistanceX", -1, 1, 2, 3, 23.0))
sketch19.addConstraint(Sketcher.Constraint("DistanceX", 1, 3, -1, 1, 9.5))
pocket9 = body.newObject("PartDesign::Pocket", "Pocket008")
pocket9.Profile = sketch19
pocket9.Length = 3.5
doc.recompute()

fillet3 = body.newObject("PartDesign::Fillet", "Fillet002")
fillet3.Base = (pocket9, edges_at(pocket9, [
    (-9.5, 14.5, 15),
    (-9.5, -14.5, 15),
    (-9.5, 5.1, 15),
    (-9.5, -5.1, 15),
]))
fillet3.Radius = 1

doc.recompute()
